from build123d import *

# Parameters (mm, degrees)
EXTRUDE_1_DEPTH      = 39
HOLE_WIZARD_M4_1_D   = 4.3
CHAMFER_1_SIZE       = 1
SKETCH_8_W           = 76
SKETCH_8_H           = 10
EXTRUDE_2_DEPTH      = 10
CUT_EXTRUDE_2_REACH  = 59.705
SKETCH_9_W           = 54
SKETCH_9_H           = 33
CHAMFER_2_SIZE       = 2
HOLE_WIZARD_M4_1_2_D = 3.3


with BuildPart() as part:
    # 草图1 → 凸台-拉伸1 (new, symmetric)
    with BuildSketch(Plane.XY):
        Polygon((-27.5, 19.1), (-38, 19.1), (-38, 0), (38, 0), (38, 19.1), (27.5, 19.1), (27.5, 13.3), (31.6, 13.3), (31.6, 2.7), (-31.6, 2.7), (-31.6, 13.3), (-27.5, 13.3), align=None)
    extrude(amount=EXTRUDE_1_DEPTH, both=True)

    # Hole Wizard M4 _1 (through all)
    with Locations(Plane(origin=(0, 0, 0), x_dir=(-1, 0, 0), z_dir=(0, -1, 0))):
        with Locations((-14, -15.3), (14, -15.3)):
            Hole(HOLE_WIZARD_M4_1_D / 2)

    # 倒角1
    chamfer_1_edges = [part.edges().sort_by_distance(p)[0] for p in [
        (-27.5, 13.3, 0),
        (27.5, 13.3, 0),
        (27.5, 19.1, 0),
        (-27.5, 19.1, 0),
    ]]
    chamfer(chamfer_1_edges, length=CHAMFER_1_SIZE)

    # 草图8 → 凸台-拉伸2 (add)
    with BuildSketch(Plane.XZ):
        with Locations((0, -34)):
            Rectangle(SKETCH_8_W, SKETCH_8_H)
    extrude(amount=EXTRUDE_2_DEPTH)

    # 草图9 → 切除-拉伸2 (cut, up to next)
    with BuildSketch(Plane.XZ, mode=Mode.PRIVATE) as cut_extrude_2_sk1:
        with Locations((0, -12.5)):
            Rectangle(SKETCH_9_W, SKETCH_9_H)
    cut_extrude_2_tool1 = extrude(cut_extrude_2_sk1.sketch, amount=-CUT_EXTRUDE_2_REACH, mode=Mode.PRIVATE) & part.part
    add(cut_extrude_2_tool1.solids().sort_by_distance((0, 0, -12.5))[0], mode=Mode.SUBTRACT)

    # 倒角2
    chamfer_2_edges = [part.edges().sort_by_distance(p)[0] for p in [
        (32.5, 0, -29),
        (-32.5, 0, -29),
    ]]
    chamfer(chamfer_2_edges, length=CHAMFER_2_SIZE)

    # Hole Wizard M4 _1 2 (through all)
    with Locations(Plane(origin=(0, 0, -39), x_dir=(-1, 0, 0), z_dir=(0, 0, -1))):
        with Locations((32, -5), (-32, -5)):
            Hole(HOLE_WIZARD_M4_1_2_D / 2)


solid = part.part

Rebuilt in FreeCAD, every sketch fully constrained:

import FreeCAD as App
import Part
import Sketcher
Q = App.Units.Quantity


def edges_at(feature, points):
    """Names of the edges that pass closest to the given points."""
    edges = feature.Shape.Edges
    near = lambda p: min(range(len(edges)), key=lambda i: edges[i].distToShape(Part.Vertex(*p))[0])
    return sorted({f"Edge{near(p) + 1}" for p in points})


def add_polygon(sketch, points):
    """Adds a closed chain of lines whose ends are joined by coincident constraints."""
    first, n = sketch.GeometryCount, len(points)
    for a, b in zip(points, points[1:] + points[:1]):
        sketch.addGeometry(Part.LineSegment(App.Vector(*a, 0), App.Vector(*b, 0)), False)
    for i in range(n):
        sketch.addConstraint(Sketcher.Constraint("Coincident", first + i, 2, first + (i + 1) % n, 1))

doc = App.newDocument("Part")
body = doc.addObject("PartDesign::Body", "Body")

sketch1 = body.newObject("Sketcher::SketchObject", "Sketch")
sketch1.AttachmentSupport = (doc.getObject("XY_Plane"), [""])
sketch1.MapMode = "FlatFace"
add_polygon(sketch1, [(-27.5, 19.1), (-38, 19.1), (-38, 0), (38, 0), (38, 19.1), (27.5, 19.1), (27.5, 13.3), (31.6, 13.3), (31.6, 2.7), (-31.6, 2.7), (-31.6, 13.3), (-27.5, 13.3)])
sketch1.addConstraint([
    Sketcher.Constraint("Horizontal", 0),
    Sketcher.Constraint("Vertical", 1),
    Sketcher.Constraint("Horizontal", 2),
    Sketcher.Constraint("Vertical", 3),
    Sketcher.Constraint("Horizontal", 4),
    Sketcher.Constraint("Vertical", 5),
    Sketcher.Constraint("Horizontal", 6),
    Sketcher.Constraint("Vertical", 7),
    Sketcher.Constraint("Horizontal", 8),
    Sketcher.Constraint("Vertical", 9),
    Sketcher.Constraint("Horizontal", 10),
    Sketcher.Constraint("Vertical", 11),
    Sketcher.Constraint("Symmetric", 1, 2, 2, 2, -1, 1),
    Sketcher.Constraint("Symmetric", 6, 2, 9, 2, -2),
    Sketcher.Constraint("Symmetric", 4, 2, 11, 2, -2),
    Sketcher.Constraint("DistanceX", 2, 1, 2, 2, Q("76 mm")),
    Sketcher.Constraint("DistanceX", 0, 2, 0, 1, Q("10.5 mm")),
    Sketcher.Constraint("DistanceX", 6, 1, 6, 2, Q("4.1 mm")),
    Sketcher.Constraint("DistanceY", 1, 2, 1, 1, Q("19.1 mm")),
    Sketcher.Constraint("DistanceY", 5, 2, 5, 1, Q("5.8 mm")),
    Sketcher.Constraint("DistanceY", 7, 2, 7, 1, Q("10.6 mm")),
])
pad1 = body.newObject("PartDesign::Pad", "Pad")
pad1.Profile = sketch1
pad1.Length = 78
pad1.Midplane = True

sketch2 = body.newObject("Sketcher::SketchObject", "Sketch001")
sketch2.AttachmentSupport = (doc.getObject("XZ_Plane"), [""])
sketch2.MapMode = "FlatFace"
sketch2.addGeometry([
    Part.Circle(App.Vector(14, 15.3, 0), App.Vector(0, 0, 1), 2.1),
    Part.Circle(App.Vector(-14, 15.3, 0), App.Vector(0, 0, 1), 2.1),
], False)
sketch2.addConstraint([
    Sketcher.Constraint("Equal", 0, 1),
    Sketcher.Constraint("Symmetric", 0, 3, 1, 3, -2),
    Sketcher.Constraint("Diameter", 0, Q("4.3 mm")),
    Sketcher.Constraint("DistanceX", -1, 1, 0, 3, Q("14 mm")),
    Sketcher.Constraint("DistanceY", -1, 1, 0, 3, Q("15.3 mm")),
])
doc.recompute()
hole = body.newObject("PartDesign::Hole", "Hole")
hole.Profile = sketch2
hole.ThreadType = "None"
hole.Diameter = 4.3
hole.DepthType = "ThroughAll"
doc.recompute()

chamfer = body.newObject("PartDesign::Chamfer", "Chamfer")
chamfer.Base = (hole, edges_at(hole, [
    (-27.5, 13.3, 0),
    (27.5, 13.3, 0),
    (27.5, 19.1, 0),
    (-27.5, 19.1, 0),
]))
chamfer.Size = 1

sketch3 = body.newObject("Sketcher::SketchObject", "Sketch002")
sketch3.AttachmentSupport = (doc.getObject("XZ_Plane"), [""])
sketch3.MapMode = "FlatFace"
add_polygon(sketch3, [(-38, -29), (-38, -39), (38, -39), (38, -29)])
sketch3.addConstraint([
    Sketcher.Constraint("Vertical", 0),
    Sketcher.Constraint("Horizontal", 1),
    Sketcher.Constraint("Vertical", 2),
    Sketcher.Constraint("Horizontal", 3),
    Sketcher.Constraint("DistanceX", 1, 1, 1, 2, Q("76 mm")),
    Sketcher.Constraint("DistanceY", 0, 2, 0, 1, Q("10 mm")),
    Sketcher.Constraint("DistanceX", 0, 2, -1, 1, Q("38 mm")),
    Sketcher.Constraint("DistanceY", 0, 2, -1, 1, Q("39 mm")),
])
pad2 = body.newObject("PartDesign::Pad", "Pad001")
pad2.Profile = sketch3
pad2.Length = 10

sketch4 = body.newObject("Sketcher::SketchObject", "Sketch003")
sketch4.AttachmentSupport = (doc.getObject("XZ_Plane"), [""])
sketch4.MapMode = "FlatFace"
add_polygon(sketch4, [(-27, 4), (-27, -29), (27, -29), (27, 4)])
sketch4.addConstraint([
    Sketcher.Constraint("Vertical", 0),
    Sketcher.Constraint("Horizontal", 1),
    Sketcher.Constraint("Vertical", 2),
    Sketcher.Constraint("Horizontal", 3),
    Sketcher.Constraint("DistanceX", 1, 1, 1, 2, Q("54 mm")),
    Sketcher.Constraint("DistanceY", 0, 2, 0, 1, Q("33 mm")),
    Sketcher.Constraint("DistanceX", 0, 2, -1, 1, Q("27 mm")),
    Sketcher.Constraint("DistanceY", 0, 2, -1, 1, Q("29 mm")),
])
pocket1 = body.newObject("PartDesign::Pocket", "Pocket")
pocket1.Profile = sketch4
pocket1.Type = "UpToFirst"
doc.recompute()

chamfer2 = body.newObject("PartDesign::Chamfer", "Chamfer001")
chamfer2.Base = (pocket1, edges_at(pocket1, [(32.5, 0, -29), (-32.5, 0, -29)]))
chamfer2.Size = 2

sketch5 = body.newObject("Sketcher::SketchObject", "Sketch004")
sketch5.AttachmentSupport = (doc.getObject("XY_Plane"), [""])
sketch5.MapMode = "FlatFace"
sketch5.AttachmentOffset = App.Placement(App.Vector(0, 0, -39), App.Rotation())
sketch5.addGeometry([
    Part.Circle(App.Vector(-32, -5, 0), App.Vector(0, 0, 1), 1.6),
    Part.Circle(App.Vector(32, -5, 0), App.Vector(0, 0, 1), 1.6),
], False)
sketch5.addConstraint([
    Sketcher.Constraint("Equal", 0, 1),
    Sketcher.Constraint("Symmetric", 0, 3, 1, 3, -2),
    Sketcher.Constraint("Diameter", 0, Q("3.3 mm")),
    Sketcher.Constraint("DistanceX", 0, 3, -1, 1, Q("32 mm")),
    Sketcher.Constraint("DistanceY", 0, 3, -1, 1, Q("5 mm")),
])
doc.recompute()
hole2 = body.newObject("PartDesign::Hole", "Hole001")
hole2.Profile = sketch5
hole2.ThreadType = "None"
hole2.Diameter = 3.3
hole2.DepthType = "ThroughAll"
hole2.Reversed = True

doc.recompute()
